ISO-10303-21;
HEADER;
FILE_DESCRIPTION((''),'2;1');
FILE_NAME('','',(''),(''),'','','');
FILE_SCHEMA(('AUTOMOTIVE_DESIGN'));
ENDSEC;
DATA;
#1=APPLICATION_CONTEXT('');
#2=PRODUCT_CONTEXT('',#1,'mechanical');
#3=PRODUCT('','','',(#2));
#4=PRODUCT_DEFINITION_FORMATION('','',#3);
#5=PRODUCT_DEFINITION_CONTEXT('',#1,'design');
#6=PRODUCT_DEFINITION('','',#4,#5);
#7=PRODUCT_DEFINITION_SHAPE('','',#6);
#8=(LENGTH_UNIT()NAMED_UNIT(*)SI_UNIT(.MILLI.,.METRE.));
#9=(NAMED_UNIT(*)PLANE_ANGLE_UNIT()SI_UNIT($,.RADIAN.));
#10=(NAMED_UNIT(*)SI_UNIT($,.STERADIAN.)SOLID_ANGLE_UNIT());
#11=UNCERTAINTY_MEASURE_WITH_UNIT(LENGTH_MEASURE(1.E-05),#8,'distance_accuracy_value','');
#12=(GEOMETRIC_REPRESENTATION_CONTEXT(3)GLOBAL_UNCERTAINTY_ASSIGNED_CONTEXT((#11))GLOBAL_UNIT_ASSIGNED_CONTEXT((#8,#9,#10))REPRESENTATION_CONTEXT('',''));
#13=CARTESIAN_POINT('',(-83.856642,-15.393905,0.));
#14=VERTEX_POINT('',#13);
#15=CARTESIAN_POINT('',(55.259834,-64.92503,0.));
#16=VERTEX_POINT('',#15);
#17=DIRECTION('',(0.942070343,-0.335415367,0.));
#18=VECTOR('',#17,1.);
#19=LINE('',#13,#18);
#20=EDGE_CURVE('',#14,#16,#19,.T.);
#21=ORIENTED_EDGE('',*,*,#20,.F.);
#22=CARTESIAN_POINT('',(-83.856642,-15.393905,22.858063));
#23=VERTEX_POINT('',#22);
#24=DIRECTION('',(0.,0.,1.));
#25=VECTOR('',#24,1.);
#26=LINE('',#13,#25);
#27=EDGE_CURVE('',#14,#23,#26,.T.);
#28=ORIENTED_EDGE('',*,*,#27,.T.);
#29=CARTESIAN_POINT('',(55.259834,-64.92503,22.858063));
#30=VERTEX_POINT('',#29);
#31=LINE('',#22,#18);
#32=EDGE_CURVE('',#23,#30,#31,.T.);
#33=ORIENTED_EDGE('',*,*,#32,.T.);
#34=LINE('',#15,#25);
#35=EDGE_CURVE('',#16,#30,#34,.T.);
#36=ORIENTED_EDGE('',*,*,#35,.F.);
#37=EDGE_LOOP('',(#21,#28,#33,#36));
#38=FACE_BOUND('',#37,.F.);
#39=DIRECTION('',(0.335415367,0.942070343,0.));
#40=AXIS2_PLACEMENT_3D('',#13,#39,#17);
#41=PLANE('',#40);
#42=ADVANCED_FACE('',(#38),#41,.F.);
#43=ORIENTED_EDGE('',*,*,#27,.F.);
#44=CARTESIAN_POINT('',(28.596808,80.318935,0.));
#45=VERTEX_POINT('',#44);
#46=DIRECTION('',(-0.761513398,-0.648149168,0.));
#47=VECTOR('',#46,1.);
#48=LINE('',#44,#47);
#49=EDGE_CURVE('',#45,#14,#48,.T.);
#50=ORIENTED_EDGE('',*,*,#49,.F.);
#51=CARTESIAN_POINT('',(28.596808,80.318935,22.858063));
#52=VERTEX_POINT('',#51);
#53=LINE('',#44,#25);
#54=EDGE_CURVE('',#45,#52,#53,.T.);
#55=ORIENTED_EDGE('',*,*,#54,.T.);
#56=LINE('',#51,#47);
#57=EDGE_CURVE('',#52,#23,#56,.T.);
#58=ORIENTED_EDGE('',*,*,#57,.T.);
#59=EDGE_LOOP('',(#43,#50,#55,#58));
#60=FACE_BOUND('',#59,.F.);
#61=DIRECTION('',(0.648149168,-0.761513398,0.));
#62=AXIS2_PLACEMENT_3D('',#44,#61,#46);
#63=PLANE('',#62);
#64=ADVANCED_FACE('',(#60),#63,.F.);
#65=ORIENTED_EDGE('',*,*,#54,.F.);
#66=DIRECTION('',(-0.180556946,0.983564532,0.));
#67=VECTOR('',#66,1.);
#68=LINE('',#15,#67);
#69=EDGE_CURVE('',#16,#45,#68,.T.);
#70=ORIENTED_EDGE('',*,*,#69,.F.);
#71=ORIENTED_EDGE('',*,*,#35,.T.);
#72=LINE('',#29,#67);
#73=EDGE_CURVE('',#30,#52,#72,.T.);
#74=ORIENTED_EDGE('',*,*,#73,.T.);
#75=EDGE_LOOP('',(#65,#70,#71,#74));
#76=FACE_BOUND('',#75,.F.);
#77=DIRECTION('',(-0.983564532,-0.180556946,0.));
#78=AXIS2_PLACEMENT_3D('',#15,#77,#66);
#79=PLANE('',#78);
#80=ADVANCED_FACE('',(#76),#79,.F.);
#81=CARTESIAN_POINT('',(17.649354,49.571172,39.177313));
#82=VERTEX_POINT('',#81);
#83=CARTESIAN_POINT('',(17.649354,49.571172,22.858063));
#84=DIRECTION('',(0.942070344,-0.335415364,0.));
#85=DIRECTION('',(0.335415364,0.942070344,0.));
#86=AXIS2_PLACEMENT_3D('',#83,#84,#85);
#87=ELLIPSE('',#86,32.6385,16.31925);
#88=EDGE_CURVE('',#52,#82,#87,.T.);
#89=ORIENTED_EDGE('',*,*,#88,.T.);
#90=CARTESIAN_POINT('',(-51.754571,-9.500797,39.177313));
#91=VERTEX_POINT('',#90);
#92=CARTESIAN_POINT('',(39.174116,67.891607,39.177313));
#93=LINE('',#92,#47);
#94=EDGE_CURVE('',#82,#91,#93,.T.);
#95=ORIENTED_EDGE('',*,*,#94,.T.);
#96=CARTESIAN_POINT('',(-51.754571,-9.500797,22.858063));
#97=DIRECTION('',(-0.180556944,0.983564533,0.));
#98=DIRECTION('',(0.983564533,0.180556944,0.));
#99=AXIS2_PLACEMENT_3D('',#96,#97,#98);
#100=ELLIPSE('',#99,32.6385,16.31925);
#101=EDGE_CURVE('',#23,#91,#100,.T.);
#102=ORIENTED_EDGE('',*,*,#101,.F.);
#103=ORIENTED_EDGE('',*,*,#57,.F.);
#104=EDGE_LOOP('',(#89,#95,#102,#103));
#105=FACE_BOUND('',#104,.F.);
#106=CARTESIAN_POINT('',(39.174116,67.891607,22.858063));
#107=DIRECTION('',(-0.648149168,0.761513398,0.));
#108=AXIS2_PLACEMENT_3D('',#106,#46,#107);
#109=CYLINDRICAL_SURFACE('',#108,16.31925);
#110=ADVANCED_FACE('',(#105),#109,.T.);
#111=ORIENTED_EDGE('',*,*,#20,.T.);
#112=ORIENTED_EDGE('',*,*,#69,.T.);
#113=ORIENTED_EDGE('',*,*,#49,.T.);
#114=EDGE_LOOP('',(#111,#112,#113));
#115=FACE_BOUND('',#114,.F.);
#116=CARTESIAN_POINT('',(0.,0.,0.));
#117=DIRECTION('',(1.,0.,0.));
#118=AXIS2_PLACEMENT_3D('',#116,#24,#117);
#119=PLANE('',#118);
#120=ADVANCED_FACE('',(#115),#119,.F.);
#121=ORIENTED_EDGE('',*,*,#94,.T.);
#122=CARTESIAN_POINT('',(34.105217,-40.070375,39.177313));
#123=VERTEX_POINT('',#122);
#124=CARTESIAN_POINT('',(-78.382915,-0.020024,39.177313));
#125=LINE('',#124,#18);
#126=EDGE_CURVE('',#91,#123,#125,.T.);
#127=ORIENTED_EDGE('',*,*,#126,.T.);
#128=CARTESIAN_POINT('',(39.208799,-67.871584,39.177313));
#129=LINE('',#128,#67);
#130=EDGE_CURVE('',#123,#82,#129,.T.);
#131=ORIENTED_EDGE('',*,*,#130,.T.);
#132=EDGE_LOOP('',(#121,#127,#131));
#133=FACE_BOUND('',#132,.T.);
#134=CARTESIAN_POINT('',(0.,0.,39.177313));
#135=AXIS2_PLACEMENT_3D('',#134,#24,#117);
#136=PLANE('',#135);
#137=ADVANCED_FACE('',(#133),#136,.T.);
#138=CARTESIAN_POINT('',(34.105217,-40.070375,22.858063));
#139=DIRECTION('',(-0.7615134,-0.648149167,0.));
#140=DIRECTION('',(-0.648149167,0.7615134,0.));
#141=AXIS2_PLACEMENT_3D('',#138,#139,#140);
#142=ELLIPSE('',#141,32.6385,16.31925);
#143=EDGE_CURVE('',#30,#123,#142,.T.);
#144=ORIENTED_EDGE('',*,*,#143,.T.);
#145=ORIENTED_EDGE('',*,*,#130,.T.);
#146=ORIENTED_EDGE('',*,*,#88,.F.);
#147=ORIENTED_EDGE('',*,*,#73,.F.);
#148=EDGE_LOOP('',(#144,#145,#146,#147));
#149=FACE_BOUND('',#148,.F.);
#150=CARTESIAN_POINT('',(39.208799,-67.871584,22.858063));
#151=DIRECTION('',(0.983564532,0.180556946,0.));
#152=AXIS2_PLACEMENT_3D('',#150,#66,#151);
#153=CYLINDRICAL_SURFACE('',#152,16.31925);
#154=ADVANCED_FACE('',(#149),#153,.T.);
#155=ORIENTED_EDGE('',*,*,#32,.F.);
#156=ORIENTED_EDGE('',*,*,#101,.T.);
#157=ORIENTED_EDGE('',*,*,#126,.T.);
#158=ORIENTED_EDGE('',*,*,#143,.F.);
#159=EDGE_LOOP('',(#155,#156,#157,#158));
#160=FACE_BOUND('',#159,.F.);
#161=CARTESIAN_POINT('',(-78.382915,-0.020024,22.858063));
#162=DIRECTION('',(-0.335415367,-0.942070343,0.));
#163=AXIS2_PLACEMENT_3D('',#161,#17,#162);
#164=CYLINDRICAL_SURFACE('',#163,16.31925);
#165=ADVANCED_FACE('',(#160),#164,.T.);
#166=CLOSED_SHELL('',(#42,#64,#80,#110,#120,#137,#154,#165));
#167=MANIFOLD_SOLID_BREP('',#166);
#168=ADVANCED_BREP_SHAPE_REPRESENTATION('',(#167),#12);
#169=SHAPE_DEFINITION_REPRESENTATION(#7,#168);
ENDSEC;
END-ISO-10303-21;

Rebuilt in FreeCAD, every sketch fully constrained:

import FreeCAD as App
import Part
import Sketcher
from FreeCAD import Vector


def edges_at(feature, points):
    """Names of the edges that pass closest to the given points."""
    edges = feature.Shape.Edges
    near = lambda p: min(range(len(edges)), key=lambda i: edges[i].distToShape(Part.Vertex(*p))[0])
    return sorted({f"Edge{near(p) + 1}" for p in points})


def add_polygon(sketch, points):
    """Adds a closed chain of lines whose ends are joined by coincident constraints."""
    first, n = sketch.GeometryCount, len(points)
    for a, b in zip(points, points[1:] + points[:1]):
        sketch.addGeometry(Part.LineSegment(App.Vector(*a, 0), App.Vector(*b, 0)), False)
    for i in range(n):
        sketch.addConstraint(Sketcher.Constraint("Coincident", first + i, 2, first + (i + 1) % n, 1))

doc = App.newDocument("Part")
params = doc.addObject("Spreadsheet::Sheet", "Params")
for row, (alias, value) in enumerate([
    ("pad1_length", "39.177313 mm"),
    ("fillet_radius", "16.31925 mm"),
    ("pad2_length", "30.095011 mm"),
    ("pad3_length", "26.99797 mm"),
], start=1):
    params.set(f"A{row}", alias)
    params.set(f"B{row}", "=" + value)
    params.setAlias(f"B{row}", alias)

body = doc.addObject("PartDesign::Body", "Body")

# Sketch on XY plane
sketch1 = doc.addObject("Sketcher::SketchObject", "Sketch")
body.addObject(sketch1)
sketch1.AttachmentSupport = (doc.XY_Plane, [""])
sketch1.MapMode = "FlatFace"
add_polygon(sketch1, [(55, -65), (29, 80), (-84, -15)])  # lines 0-2
sketch1.addConstraint(Sketcher.Constraint("Equal", 0, 1))
sketch1.addConstraint(Sketcher.Constraint("Equal", 1, 2))
sketch1.addConstraint(Sketcher.Constraint("DistanceX", 1, 2, -1, 1, 83.856642))
sketch1.addConstraint(Sketcher.Constraint("DistanceY", 2, 2, -1, 1, 64.92503))
sketch1.addConstraint(Sketcher.Constraint("DistanceX", 1, 2, 0, 2, 112.45345))
sketch1.addConstraint(Sketcher.Constraint("DistanceY", 1, 2, 0, 2, 95.71284))
pad1 = doc.addObject("PartDesign::Pad", "Pad")
body.addObject(pad1)
pad1.Profile = sketch1
pad1.setExpression("Length", "Params.pad1_length")
doc.recompute()

fillet = doc.addObject("PartDesign::Fillet", "Fillet")
body.addObject(fillet)
fillet.Base = (pad1, edges_at(pad1, [(41.928, 7.697, 39.177), (-14.298, -40.159, 39.177), (-27.63, 32.463, 39.177)]))
fillet.setExpression("Radius", "Params.fillet_radius")

# Sketch on XY plane
sketch2 = doc.addObject("Sketcher::SketchObject", "Sketch001")
body.addObject(sketch2)
sketch2.AttachmentSupport = (doc.XY_Plane, [""])
sketch2.MapMode = "FlatFace"
sketch2.addGeometry(Part.Circle(Vector(0, 0, 0), Vector(0, 0, 1), 30), False)
sketch2.addConstraint(Sketcher.Constraint("Coincident", 0, 3, -1, 1))
sketch2.addConstraint(Sketcher.Constraint("Diameter", 0, 60.194734))
pad2 = doc.addObject("PartDesign::Pad", "Pad001")
body.addObject(pad2)
pad2.Profile = sketch2
pad2.setExpression("Length", "Params.pad2_length")

# Sketch on XY plane
sketch3 = doc.addObject("Sketcher::SketchObject", "Sketch002")
body.addObject(sketch3)
sketch3.AttachmentSupport = (doc.XY_Plane, [""])
sketch3.MapMode = "FlatFace"
add_polygon(sketch3, [(16, -31), (32, -13), (33, 11), (18, 29), (-5, 34), (-26, 23), (-35, 1), (-27, -21), (-7, -34)])  # lines 0-8
sketch3.addConstraint(Sketcher.Constraint("Equal", 0, 1))
sketch3.addConstraint(Sketcher.Constraint("Equal", 1, 2))
sketch3.addConstraint(Sketcher.Constraint("Equal", 2, 3))
sketch3.addConstraint(Sketcher.Constraint("Equal", 3, 4))
sketch3.addConstraint(Sketcher.Constraint("Equal", 4, 5))
sketch3.addConstraint(Sketcher.Constraint("Equal", 5, 6))
sketch3.addConstraint(Sketcher.Constraint("Equal", 6, 7))
sketch3.addConstraint(Sketcher.Constraint("Equal", 7, 8))
sketch3.addConstraint(Sketcher.Constraint("DistanceY", 0, 2, 4, 2, 36.161002))
sketch3.addConstraint(Sketcher.Constraint("Distance", 0, 23.681802))
sketch3.addConstraint(Sketcher.Constraint("DistanceX", 4, 2, 2, 2, 44.0769))
sketch3.addConstraint(Sketcher.Constraint("DistanceY", 6, 2, 0, 2, 8.3184))
sketch3.addConstraint(Sketcher.Constraint("DistanceX", -1, 1, 0, 2, 32.093639))
sketch3.addConstraint(Sketcher.Constraint("DistanceY", 0, 2, -1, 1, 12.983671))
sketch3.addConstraint(Sketcher.Constraint("DistanceX", -1, 1, 2, 2, 18.359422))
sketch3.addConstraint(Sketcher.Constraint("DistanceX", 3, 2, -1, 1, 4.80263))
sketch3.addConstraint(Sketcher.Constraint("DistanceY", -1, 1, 5, 2, 1.223989))
sketch3.addConstraint(Sketcher.Constraint("DistanceX", -1, 1, 8, 2, 16.23941))
pad3 = doc.addObject("PartDesign::Pad", "Pad002")
body.addObject(pad3)
pad3.Profile = sketch3
pad3.setExpression("Length", "Params.pad3_length")

doc.recompute()
